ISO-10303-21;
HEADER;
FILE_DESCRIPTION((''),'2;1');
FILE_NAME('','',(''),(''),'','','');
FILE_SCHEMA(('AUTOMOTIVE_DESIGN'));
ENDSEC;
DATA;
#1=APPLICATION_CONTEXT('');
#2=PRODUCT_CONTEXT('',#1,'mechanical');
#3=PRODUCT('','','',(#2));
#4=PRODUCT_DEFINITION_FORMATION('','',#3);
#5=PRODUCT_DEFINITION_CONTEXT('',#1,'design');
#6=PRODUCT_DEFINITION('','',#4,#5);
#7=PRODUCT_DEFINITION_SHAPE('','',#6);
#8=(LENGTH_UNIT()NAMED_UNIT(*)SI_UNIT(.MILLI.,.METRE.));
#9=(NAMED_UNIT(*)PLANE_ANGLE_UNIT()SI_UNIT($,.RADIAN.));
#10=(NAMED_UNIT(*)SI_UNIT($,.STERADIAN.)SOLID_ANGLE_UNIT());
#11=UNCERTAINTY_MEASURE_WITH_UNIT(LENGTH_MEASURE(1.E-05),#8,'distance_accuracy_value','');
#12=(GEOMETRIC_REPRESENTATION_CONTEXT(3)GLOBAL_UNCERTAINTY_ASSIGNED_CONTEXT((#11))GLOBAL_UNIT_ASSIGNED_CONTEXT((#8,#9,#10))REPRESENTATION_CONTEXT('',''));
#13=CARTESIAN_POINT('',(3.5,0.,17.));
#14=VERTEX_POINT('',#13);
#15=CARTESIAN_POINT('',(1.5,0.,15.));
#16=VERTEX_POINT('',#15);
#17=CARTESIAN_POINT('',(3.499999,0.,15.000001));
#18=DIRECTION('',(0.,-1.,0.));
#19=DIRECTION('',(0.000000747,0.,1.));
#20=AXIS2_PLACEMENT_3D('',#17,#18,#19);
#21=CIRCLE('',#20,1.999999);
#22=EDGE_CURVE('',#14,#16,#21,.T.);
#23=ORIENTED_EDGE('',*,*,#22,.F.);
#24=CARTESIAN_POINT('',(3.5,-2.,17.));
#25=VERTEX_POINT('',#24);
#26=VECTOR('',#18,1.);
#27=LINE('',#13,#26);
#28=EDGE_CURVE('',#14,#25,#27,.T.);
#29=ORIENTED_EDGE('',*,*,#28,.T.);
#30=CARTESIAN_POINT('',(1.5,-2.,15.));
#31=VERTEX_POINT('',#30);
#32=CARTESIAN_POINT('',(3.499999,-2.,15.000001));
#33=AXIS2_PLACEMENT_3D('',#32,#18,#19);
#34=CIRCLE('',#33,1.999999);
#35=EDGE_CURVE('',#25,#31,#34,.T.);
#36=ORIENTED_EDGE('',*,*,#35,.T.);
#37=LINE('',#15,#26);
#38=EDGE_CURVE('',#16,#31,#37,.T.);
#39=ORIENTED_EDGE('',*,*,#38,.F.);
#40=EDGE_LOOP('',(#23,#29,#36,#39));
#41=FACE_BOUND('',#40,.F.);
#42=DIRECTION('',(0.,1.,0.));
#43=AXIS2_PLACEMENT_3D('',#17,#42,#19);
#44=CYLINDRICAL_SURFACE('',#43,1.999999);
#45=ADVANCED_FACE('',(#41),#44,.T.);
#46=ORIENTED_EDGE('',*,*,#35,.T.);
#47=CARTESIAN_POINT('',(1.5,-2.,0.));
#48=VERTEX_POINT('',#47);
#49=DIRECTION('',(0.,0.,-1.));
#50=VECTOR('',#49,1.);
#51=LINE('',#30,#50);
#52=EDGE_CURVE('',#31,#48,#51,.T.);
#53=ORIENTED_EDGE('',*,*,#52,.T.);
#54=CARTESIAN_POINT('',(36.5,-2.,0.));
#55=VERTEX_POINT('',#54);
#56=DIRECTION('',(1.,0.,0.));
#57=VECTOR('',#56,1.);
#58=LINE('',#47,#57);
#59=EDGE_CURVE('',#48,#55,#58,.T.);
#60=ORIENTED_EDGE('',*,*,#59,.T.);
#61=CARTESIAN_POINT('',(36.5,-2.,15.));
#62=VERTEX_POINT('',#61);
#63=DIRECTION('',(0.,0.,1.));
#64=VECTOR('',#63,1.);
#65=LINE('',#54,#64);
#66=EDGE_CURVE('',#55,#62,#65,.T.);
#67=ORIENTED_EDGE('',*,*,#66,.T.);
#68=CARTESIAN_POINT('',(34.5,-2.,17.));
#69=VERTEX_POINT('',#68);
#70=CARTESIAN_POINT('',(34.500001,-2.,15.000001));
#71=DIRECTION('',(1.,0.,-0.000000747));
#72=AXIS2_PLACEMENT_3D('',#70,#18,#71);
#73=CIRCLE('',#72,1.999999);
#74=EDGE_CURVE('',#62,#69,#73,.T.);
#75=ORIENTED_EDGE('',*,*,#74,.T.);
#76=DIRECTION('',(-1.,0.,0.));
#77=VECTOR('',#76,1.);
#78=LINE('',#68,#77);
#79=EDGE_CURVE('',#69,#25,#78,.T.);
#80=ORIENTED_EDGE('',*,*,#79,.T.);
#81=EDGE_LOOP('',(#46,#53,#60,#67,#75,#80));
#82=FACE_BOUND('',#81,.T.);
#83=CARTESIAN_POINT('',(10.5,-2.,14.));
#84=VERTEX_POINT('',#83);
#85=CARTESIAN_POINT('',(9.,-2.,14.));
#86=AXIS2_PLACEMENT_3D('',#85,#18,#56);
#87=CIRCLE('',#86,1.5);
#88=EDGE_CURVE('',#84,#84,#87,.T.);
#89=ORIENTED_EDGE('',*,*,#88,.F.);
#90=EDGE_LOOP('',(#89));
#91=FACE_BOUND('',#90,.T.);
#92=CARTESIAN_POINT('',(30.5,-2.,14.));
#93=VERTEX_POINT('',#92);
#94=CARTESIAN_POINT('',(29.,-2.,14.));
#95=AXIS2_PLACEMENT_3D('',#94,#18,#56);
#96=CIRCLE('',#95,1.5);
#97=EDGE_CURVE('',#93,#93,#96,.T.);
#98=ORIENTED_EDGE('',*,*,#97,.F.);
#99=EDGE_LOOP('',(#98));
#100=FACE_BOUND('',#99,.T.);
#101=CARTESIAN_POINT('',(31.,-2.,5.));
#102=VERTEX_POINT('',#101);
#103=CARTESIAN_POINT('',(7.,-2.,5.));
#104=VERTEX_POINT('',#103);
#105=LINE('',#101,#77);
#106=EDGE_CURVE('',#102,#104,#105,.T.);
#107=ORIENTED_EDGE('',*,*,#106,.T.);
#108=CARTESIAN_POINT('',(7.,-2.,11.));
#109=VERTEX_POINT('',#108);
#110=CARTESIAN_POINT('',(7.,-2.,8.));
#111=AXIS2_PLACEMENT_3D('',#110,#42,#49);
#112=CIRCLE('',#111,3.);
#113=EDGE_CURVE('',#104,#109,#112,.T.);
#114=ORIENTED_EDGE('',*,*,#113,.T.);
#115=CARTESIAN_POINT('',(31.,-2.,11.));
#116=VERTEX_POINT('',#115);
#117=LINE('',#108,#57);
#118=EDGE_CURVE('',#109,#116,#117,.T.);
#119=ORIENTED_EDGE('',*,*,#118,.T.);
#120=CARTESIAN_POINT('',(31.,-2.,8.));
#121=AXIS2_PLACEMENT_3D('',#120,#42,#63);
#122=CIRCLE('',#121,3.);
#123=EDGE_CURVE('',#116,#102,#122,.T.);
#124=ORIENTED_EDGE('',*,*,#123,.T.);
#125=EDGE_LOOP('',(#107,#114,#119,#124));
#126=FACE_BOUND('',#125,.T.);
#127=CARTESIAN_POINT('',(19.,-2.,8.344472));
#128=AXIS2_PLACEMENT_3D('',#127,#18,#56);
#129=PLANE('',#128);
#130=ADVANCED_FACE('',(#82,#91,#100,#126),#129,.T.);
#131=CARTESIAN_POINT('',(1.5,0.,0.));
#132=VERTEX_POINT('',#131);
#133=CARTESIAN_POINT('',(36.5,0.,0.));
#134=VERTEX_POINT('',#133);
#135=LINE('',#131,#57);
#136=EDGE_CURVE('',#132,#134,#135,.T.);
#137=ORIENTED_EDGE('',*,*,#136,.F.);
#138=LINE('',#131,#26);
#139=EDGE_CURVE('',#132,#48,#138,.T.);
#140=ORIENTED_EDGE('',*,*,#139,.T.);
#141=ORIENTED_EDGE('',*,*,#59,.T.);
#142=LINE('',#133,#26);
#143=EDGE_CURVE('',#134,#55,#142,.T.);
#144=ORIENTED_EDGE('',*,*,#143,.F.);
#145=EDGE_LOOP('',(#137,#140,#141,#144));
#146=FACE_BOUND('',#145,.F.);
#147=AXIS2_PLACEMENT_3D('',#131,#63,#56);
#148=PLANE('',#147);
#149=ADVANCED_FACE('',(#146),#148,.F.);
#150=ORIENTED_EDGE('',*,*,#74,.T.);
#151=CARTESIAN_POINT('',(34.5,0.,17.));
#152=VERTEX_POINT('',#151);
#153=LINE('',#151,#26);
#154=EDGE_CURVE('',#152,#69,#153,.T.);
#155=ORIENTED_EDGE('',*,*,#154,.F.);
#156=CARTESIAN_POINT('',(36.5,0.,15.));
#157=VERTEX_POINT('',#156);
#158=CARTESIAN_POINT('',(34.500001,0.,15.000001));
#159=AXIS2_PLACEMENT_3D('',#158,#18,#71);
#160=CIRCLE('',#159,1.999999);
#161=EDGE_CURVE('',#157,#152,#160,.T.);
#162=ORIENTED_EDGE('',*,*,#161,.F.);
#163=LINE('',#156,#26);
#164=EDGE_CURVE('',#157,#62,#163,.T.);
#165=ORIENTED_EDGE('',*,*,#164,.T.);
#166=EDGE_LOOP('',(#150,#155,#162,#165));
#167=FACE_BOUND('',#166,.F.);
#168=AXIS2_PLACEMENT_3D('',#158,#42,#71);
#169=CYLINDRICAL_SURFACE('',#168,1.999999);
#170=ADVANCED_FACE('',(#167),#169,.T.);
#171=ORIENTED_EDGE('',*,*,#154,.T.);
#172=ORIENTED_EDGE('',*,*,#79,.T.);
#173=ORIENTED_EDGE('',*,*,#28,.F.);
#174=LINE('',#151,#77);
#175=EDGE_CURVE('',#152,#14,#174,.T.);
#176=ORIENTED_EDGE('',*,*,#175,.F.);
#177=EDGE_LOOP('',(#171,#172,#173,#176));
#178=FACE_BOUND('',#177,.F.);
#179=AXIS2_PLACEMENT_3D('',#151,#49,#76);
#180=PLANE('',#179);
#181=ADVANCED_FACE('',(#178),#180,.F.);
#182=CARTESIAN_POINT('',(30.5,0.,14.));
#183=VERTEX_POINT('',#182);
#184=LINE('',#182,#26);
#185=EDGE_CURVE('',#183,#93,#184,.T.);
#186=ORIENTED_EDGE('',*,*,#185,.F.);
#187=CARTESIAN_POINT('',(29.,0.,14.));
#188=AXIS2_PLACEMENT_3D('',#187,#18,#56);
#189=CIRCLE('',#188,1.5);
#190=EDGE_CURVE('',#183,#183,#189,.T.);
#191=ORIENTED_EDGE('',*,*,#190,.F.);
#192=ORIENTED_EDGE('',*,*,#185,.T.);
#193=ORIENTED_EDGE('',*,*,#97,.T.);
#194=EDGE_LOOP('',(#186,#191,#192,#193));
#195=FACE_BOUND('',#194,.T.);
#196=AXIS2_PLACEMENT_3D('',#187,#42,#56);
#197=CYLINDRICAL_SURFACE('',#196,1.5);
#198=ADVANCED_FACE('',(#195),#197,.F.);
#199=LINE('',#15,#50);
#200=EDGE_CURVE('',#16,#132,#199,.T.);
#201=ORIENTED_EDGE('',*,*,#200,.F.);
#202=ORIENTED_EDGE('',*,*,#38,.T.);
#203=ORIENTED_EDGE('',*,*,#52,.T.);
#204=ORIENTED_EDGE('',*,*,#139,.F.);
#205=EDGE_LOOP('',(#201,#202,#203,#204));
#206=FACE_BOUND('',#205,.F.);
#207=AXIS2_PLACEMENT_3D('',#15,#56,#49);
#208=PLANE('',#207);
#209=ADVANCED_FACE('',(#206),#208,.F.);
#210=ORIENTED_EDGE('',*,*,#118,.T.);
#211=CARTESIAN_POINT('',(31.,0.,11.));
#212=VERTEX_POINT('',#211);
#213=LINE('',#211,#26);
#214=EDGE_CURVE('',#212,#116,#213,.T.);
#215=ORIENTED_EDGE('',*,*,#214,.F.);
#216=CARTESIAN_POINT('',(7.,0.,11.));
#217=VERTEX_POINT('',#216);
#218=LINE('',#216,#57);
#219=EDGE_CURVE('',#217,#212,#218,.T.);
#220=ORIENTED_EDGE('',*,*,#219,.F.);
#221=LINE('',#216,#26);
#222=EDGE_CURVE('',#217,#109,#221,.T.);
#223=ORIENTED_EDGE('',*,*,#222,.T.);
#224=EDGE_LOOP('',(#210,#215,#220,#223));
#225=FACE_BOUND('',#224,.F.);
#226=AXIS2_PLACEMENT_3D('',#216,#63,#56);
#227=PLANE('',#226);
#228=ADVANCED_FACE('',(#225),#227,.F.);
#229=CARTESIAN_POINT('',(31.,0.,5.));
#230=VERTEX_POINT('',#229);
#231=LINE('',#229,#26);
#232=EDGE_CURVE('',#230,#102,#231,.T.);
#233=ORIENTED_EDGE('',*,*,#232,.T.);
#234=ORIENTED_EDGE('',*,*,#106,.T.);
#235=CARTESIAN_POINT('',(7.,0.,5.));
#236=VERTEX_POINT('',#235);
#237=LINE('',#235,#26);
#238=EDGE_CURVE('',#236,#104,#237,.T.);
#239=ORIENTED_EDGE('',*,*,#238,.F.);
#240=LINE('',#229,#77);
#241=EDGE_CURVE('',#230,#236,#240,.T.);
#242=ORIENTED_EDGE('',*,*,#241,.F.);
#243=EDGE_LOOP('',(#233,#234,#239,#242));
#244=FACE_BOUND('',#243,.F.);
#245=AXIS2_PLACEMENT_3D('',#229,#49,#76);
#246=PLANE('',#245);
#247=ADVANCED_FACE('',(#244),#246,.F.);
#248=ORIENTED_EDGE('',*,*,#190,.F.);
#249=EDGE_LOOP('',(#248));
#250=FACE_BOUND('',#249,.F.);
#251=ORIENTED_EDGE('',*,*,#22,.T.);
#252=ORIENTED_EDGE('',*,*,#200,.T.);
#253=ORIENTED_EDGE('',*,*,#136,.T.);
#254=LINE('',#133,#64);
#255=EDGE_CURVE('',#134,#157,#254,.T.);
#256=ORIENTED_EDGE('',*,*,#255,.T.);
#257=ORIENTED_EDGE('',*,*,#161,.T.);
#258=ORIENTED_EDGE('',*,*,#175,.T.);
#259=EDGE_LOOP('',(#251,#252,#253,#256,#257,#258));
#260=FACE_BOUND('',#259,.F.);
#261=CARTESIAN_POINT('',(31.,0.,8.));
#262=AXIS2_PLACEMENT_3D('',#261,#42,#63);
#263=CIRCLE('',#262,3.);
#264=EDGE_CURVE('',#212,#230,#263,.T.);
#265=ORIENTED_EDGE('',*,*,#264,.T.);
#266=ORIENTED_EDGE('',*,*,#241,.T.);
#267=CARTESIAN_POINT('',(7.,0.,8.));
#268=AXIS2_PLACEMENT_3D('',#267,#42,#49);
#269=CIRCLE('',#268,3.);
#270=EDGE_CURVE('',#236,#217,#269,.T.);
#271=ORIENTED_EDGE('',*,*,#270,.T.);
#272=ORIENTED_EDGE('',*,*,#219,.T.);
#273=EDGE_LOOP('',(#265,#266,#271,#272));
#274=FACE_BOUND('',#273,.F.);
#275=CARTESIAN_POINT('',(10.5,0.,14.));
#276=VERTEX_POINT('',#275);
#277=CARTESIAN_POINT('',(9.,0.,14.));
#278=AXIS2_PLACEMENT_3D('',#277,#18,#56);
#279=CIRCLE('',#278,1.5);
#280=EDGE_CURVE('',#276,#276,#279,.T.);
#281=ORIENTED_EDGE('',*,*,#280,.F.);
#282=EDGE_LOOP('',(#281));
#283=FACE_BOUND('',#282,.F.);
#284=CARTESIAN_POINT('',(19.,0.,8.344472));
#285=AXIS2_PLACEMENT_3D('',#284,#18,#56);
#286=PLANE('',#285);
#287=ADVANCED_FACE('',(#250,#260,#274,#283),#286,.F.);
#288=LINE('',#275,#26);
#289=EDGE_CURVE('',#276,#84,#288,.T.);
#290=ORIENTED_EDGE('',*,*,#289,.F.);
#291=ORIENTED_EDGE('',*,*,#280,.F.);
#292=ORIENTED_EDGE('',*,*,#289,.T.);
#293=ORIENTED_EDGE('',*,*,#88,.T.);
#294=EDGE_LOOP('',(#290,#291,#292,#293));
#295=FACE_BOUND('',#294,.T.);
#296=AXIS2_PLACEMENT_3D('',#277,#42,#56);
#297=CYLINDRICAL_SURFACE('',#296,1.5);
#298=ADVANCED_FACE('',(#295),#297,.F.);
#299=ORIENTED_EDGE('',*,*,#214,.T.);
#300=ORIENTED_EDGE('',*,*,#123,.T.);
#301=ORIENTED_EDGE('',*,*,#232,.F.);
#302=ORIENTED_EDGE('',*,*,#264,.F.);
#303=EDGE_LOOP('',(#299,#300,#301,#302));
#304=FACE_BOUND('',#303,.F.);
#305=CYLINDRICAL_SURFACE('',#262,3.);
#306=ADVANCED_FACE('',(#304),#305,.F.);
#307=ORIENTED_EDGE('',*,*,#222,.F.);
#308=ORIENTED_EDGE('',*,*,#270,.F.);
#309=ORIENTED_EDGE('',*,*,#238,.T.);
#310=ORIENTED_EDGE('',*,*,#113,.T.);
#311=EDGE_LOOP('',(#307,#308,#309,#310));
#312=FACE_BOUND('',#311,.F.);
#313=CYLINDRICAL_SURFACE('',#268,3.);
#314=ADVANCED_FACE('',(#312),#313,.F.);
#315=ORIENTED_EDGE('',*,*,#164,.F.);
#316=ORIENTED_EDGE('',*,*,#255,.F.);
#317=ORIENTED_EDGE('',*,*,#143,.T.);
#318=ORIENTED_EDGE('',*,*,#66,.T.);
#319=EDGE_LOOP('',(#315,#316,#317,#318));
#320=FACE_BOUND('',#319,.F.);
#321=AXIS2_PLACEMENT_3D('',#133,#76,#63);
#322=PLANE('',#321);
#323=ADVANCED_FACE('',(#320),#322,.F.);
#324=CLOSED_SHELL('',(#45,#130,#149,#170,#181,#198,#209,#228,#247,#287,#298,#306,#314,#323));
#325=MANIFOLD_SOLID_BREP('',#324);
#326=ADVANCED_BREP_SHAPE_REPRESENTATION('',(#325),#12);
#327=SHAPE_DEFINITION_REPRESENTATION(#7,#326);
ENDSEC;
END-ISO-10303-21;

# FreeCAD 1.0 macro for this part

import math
import FreeCAD as App
import Part
import Sketcher

V = App.Vector
Q = App.Units.Quantity

doc = App.newDocument("Part")
body = doc.addObject("PartDesign::Body", "Body")

sketch1 = doc.addObject("Sketcher::SketchObject", "Sketch")
body.addObject(sketch1)
sketch1.AttachmentSupport = (doc.XZ_Plane, [""])
sketch1.MapMode = "FlatFace"
sketch1.addGeometry([
    Part.LineSegment(V(34.5, 17, 0), V(3.5, 17, 0)),
    Part.ArcOfCircle(Part.Circle(V(3.499999, 15.000001, 0), V(0, 0, 1), 1.999999), math.radians(89.999957), math.radians(180.000043)),
    Part.LineSegment(V(1.5, 15, 0), V(1.5, 0, 0)),
    Part.LineSegment(V(1.5, 0, 0), V(36.5, 0, 0)),
    Part.LineSegment(V(36.5, 0, 0), V(36.5, 15, 0)),
    Part.ArcOfCircle(Part.Circle(V(34.500001, 15.000001, 0), V(0, 0, 1), 1.999999), math.radians(-0.000043), math.radians(90.000043)),
    Part.LineSegment(V(31, 5, 0), V(7, 5, 0)),
    Part.ArcOfCircle(Part.Circle(V(7, 8, 0), V(0, 0, 1), 3), math.radians(90), math.radians(270)),
    Part.LineSegment(V(7, 11, 0), V(31, 11, 0)),
    Part.ArcOfCircle(Part.Circle(V(31, 8, 0), V(0, 0, 1), 3), math.radians(-90), math.radians(90)),
    Part.Circle(V(9, 14, 0), V(0, 0, 1), 1.5),
    Part.Circle(V(29, 14, 0), V(0, 0, 1), 1.5),
], False)
sketch1.addConstraint([
    Sketcher.Constraint("Tangent", 0, 2, 1, 1),
    Sketcher.Constraint("Tangent", 1, 2, 2, 1),
    Sketcher.Constraint("Coincident", 2, 2, 3, 1),
    Sketcher.Constraint("Coincident", 3, 2, 4, 1),
    Sketcher.Constraint("Tangent", 4, 2, 5, 1),
    Sketcher.Constraint("Tangent", 5, 2, 0, 1),
    Sketcher.Constraint("Tangent", 6, 2, 7, 2),
    Sketcher.Constraint("Tangent", 7, 1, 8, 1),
    Sketcher.Constraint("Tangent", 8, 2, 9, 2),
    Sketcher.Constraint("Tangent", 9, 1, 6, 1),
    Sketcher.Constraint("Horizontal", 0),
    Sketcher.Constraint("Vertical", 2),
    Sketcher.Constraint("Horizontal", 3),
    Sketcher.Constraint("Vertical", 4),
    Sketcher.Constraint("Horizontal", 6),
    Sketcher.Constraint("Horizontal", 8),
    Sketcher.Constraint("Equal", 1, 5),
    Sketcher.Constraint("Equal", 10, 11),
    Sketcher.Constraint("PointOnObject", 2, 2, -1),
    Sketcher.Constraint("Horizontal", 10, 3, 11, 3),
    Sketcher.Constraint("Diameter", 10, Q("3 mm")),
    Sketcher.Constraint("Radius", 1, Q("1.999999 mm")),
    Sketcher.Constraint("Radius", 7, Q("3 mm")),
    Sketcher.Constraint("DistanceX", 0, 2, 0, 1, Q("31 mm")),
    Sketcher.Constraint("DistanceX", 6, 2, 6, 1, Q("24 mm")),
    Sketcher.Constraint("DistanceY", 2, 2, 2, 1, Q("15 mm")),
    Sketcher.Constraint("DistanceX", -1, 1, 7, 3, Q("7 mm")),
    Sketcher.Constraint("DistanceY", -1, 1, 7, 3, Q("8 mm")),
    Sketcher.Constraint("DistanceX", -1, 1, 10, 3, Q("9 mm")),
    Sketcher.Constraint("DistanceY", -1, 1, 10, 3, Q("14 mm")),
    Sketcher.Constraint("DistanceX", -1, 1, 11, 3, Q("29 mm")),
    Sketcher.Constraint("DistanceX", -1, 1, 1, 3, Q("3.499999 mm")),
])
pad1 = doc.addObject("PartDesign::Pad", "Pad")
body.addObject(pad1)
pad1.Profile = sketch1
pad1.Length = 2

doc.recompute()
